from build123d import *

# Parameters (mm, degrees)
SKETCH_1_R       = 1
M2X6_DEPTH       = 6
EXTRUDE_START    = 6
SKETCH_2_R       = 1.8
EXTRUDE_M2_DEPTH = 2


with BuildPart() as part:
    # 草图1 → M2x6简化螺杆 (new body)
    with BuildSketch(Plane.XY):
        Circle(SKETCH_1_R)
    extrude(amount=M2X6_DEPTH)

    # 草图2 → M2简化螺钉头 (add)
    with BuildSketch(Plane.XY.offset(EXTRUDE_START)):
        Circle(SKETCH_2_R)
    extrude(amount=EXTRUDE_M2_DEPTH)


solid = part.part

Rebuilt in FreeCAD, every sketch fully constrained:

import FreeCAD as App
import Part
import Sketcher
from FreeCAD import Vector
Q = App.Units.Quantity

doc = App.newDocument("Part")
body = doc.addObject("PartDesign::Body", "Body")

sketch1 = body.newObject("Sketcher::SketchObject", "Sketch")
sketch1.AttachmentSupport = (doc.getObject("XY_Plane"), [""])
sketch1.MapMode = "FlatFace"
sketch1.addGeometry(Part.Circle(Vector(0, 0, 0), Vector(0, 0, 1), 1), False)
sketch1.addConstraint([
    Sketcher.Constraint("Coincident", 0, 3, -1, 1),
    Sketcher.Constraint("Diameter", 0, Q("2 mm")),
])
pad1 = body.newObject("PartDesign::Pad", "Pad")
pad1.Profile = sketch1
pad1.Length = 6

sketch2 = body.newObject("Sketcher::SketchObject", "Sketch001")
sketch2.AttachmentSupport = (doc.getObject("XY_Plane"), [""])
sketch2.MapMode = "FlatFace"
sketch2.AttachmentOffset = App.Placement(Vector(0, 0, 6), App.Rotation())
sketch2.addGeometry(Part.Circle(Vector(0, 0, 0), Vector(0, 0, 1), 1.8), False)
sketch2.addConstraint([
    Sketcher.Constraint("Coincident", 0, 3, -1, 1),
    Sketcher.Constraint("Diameter", 0, Q("3.6 mm")),
])
pad2 = body.newObject("PartDesign::Pad", "Pad001")
pad2.Profile = sketch2
pad2.Length = 2

doc.recompute()
